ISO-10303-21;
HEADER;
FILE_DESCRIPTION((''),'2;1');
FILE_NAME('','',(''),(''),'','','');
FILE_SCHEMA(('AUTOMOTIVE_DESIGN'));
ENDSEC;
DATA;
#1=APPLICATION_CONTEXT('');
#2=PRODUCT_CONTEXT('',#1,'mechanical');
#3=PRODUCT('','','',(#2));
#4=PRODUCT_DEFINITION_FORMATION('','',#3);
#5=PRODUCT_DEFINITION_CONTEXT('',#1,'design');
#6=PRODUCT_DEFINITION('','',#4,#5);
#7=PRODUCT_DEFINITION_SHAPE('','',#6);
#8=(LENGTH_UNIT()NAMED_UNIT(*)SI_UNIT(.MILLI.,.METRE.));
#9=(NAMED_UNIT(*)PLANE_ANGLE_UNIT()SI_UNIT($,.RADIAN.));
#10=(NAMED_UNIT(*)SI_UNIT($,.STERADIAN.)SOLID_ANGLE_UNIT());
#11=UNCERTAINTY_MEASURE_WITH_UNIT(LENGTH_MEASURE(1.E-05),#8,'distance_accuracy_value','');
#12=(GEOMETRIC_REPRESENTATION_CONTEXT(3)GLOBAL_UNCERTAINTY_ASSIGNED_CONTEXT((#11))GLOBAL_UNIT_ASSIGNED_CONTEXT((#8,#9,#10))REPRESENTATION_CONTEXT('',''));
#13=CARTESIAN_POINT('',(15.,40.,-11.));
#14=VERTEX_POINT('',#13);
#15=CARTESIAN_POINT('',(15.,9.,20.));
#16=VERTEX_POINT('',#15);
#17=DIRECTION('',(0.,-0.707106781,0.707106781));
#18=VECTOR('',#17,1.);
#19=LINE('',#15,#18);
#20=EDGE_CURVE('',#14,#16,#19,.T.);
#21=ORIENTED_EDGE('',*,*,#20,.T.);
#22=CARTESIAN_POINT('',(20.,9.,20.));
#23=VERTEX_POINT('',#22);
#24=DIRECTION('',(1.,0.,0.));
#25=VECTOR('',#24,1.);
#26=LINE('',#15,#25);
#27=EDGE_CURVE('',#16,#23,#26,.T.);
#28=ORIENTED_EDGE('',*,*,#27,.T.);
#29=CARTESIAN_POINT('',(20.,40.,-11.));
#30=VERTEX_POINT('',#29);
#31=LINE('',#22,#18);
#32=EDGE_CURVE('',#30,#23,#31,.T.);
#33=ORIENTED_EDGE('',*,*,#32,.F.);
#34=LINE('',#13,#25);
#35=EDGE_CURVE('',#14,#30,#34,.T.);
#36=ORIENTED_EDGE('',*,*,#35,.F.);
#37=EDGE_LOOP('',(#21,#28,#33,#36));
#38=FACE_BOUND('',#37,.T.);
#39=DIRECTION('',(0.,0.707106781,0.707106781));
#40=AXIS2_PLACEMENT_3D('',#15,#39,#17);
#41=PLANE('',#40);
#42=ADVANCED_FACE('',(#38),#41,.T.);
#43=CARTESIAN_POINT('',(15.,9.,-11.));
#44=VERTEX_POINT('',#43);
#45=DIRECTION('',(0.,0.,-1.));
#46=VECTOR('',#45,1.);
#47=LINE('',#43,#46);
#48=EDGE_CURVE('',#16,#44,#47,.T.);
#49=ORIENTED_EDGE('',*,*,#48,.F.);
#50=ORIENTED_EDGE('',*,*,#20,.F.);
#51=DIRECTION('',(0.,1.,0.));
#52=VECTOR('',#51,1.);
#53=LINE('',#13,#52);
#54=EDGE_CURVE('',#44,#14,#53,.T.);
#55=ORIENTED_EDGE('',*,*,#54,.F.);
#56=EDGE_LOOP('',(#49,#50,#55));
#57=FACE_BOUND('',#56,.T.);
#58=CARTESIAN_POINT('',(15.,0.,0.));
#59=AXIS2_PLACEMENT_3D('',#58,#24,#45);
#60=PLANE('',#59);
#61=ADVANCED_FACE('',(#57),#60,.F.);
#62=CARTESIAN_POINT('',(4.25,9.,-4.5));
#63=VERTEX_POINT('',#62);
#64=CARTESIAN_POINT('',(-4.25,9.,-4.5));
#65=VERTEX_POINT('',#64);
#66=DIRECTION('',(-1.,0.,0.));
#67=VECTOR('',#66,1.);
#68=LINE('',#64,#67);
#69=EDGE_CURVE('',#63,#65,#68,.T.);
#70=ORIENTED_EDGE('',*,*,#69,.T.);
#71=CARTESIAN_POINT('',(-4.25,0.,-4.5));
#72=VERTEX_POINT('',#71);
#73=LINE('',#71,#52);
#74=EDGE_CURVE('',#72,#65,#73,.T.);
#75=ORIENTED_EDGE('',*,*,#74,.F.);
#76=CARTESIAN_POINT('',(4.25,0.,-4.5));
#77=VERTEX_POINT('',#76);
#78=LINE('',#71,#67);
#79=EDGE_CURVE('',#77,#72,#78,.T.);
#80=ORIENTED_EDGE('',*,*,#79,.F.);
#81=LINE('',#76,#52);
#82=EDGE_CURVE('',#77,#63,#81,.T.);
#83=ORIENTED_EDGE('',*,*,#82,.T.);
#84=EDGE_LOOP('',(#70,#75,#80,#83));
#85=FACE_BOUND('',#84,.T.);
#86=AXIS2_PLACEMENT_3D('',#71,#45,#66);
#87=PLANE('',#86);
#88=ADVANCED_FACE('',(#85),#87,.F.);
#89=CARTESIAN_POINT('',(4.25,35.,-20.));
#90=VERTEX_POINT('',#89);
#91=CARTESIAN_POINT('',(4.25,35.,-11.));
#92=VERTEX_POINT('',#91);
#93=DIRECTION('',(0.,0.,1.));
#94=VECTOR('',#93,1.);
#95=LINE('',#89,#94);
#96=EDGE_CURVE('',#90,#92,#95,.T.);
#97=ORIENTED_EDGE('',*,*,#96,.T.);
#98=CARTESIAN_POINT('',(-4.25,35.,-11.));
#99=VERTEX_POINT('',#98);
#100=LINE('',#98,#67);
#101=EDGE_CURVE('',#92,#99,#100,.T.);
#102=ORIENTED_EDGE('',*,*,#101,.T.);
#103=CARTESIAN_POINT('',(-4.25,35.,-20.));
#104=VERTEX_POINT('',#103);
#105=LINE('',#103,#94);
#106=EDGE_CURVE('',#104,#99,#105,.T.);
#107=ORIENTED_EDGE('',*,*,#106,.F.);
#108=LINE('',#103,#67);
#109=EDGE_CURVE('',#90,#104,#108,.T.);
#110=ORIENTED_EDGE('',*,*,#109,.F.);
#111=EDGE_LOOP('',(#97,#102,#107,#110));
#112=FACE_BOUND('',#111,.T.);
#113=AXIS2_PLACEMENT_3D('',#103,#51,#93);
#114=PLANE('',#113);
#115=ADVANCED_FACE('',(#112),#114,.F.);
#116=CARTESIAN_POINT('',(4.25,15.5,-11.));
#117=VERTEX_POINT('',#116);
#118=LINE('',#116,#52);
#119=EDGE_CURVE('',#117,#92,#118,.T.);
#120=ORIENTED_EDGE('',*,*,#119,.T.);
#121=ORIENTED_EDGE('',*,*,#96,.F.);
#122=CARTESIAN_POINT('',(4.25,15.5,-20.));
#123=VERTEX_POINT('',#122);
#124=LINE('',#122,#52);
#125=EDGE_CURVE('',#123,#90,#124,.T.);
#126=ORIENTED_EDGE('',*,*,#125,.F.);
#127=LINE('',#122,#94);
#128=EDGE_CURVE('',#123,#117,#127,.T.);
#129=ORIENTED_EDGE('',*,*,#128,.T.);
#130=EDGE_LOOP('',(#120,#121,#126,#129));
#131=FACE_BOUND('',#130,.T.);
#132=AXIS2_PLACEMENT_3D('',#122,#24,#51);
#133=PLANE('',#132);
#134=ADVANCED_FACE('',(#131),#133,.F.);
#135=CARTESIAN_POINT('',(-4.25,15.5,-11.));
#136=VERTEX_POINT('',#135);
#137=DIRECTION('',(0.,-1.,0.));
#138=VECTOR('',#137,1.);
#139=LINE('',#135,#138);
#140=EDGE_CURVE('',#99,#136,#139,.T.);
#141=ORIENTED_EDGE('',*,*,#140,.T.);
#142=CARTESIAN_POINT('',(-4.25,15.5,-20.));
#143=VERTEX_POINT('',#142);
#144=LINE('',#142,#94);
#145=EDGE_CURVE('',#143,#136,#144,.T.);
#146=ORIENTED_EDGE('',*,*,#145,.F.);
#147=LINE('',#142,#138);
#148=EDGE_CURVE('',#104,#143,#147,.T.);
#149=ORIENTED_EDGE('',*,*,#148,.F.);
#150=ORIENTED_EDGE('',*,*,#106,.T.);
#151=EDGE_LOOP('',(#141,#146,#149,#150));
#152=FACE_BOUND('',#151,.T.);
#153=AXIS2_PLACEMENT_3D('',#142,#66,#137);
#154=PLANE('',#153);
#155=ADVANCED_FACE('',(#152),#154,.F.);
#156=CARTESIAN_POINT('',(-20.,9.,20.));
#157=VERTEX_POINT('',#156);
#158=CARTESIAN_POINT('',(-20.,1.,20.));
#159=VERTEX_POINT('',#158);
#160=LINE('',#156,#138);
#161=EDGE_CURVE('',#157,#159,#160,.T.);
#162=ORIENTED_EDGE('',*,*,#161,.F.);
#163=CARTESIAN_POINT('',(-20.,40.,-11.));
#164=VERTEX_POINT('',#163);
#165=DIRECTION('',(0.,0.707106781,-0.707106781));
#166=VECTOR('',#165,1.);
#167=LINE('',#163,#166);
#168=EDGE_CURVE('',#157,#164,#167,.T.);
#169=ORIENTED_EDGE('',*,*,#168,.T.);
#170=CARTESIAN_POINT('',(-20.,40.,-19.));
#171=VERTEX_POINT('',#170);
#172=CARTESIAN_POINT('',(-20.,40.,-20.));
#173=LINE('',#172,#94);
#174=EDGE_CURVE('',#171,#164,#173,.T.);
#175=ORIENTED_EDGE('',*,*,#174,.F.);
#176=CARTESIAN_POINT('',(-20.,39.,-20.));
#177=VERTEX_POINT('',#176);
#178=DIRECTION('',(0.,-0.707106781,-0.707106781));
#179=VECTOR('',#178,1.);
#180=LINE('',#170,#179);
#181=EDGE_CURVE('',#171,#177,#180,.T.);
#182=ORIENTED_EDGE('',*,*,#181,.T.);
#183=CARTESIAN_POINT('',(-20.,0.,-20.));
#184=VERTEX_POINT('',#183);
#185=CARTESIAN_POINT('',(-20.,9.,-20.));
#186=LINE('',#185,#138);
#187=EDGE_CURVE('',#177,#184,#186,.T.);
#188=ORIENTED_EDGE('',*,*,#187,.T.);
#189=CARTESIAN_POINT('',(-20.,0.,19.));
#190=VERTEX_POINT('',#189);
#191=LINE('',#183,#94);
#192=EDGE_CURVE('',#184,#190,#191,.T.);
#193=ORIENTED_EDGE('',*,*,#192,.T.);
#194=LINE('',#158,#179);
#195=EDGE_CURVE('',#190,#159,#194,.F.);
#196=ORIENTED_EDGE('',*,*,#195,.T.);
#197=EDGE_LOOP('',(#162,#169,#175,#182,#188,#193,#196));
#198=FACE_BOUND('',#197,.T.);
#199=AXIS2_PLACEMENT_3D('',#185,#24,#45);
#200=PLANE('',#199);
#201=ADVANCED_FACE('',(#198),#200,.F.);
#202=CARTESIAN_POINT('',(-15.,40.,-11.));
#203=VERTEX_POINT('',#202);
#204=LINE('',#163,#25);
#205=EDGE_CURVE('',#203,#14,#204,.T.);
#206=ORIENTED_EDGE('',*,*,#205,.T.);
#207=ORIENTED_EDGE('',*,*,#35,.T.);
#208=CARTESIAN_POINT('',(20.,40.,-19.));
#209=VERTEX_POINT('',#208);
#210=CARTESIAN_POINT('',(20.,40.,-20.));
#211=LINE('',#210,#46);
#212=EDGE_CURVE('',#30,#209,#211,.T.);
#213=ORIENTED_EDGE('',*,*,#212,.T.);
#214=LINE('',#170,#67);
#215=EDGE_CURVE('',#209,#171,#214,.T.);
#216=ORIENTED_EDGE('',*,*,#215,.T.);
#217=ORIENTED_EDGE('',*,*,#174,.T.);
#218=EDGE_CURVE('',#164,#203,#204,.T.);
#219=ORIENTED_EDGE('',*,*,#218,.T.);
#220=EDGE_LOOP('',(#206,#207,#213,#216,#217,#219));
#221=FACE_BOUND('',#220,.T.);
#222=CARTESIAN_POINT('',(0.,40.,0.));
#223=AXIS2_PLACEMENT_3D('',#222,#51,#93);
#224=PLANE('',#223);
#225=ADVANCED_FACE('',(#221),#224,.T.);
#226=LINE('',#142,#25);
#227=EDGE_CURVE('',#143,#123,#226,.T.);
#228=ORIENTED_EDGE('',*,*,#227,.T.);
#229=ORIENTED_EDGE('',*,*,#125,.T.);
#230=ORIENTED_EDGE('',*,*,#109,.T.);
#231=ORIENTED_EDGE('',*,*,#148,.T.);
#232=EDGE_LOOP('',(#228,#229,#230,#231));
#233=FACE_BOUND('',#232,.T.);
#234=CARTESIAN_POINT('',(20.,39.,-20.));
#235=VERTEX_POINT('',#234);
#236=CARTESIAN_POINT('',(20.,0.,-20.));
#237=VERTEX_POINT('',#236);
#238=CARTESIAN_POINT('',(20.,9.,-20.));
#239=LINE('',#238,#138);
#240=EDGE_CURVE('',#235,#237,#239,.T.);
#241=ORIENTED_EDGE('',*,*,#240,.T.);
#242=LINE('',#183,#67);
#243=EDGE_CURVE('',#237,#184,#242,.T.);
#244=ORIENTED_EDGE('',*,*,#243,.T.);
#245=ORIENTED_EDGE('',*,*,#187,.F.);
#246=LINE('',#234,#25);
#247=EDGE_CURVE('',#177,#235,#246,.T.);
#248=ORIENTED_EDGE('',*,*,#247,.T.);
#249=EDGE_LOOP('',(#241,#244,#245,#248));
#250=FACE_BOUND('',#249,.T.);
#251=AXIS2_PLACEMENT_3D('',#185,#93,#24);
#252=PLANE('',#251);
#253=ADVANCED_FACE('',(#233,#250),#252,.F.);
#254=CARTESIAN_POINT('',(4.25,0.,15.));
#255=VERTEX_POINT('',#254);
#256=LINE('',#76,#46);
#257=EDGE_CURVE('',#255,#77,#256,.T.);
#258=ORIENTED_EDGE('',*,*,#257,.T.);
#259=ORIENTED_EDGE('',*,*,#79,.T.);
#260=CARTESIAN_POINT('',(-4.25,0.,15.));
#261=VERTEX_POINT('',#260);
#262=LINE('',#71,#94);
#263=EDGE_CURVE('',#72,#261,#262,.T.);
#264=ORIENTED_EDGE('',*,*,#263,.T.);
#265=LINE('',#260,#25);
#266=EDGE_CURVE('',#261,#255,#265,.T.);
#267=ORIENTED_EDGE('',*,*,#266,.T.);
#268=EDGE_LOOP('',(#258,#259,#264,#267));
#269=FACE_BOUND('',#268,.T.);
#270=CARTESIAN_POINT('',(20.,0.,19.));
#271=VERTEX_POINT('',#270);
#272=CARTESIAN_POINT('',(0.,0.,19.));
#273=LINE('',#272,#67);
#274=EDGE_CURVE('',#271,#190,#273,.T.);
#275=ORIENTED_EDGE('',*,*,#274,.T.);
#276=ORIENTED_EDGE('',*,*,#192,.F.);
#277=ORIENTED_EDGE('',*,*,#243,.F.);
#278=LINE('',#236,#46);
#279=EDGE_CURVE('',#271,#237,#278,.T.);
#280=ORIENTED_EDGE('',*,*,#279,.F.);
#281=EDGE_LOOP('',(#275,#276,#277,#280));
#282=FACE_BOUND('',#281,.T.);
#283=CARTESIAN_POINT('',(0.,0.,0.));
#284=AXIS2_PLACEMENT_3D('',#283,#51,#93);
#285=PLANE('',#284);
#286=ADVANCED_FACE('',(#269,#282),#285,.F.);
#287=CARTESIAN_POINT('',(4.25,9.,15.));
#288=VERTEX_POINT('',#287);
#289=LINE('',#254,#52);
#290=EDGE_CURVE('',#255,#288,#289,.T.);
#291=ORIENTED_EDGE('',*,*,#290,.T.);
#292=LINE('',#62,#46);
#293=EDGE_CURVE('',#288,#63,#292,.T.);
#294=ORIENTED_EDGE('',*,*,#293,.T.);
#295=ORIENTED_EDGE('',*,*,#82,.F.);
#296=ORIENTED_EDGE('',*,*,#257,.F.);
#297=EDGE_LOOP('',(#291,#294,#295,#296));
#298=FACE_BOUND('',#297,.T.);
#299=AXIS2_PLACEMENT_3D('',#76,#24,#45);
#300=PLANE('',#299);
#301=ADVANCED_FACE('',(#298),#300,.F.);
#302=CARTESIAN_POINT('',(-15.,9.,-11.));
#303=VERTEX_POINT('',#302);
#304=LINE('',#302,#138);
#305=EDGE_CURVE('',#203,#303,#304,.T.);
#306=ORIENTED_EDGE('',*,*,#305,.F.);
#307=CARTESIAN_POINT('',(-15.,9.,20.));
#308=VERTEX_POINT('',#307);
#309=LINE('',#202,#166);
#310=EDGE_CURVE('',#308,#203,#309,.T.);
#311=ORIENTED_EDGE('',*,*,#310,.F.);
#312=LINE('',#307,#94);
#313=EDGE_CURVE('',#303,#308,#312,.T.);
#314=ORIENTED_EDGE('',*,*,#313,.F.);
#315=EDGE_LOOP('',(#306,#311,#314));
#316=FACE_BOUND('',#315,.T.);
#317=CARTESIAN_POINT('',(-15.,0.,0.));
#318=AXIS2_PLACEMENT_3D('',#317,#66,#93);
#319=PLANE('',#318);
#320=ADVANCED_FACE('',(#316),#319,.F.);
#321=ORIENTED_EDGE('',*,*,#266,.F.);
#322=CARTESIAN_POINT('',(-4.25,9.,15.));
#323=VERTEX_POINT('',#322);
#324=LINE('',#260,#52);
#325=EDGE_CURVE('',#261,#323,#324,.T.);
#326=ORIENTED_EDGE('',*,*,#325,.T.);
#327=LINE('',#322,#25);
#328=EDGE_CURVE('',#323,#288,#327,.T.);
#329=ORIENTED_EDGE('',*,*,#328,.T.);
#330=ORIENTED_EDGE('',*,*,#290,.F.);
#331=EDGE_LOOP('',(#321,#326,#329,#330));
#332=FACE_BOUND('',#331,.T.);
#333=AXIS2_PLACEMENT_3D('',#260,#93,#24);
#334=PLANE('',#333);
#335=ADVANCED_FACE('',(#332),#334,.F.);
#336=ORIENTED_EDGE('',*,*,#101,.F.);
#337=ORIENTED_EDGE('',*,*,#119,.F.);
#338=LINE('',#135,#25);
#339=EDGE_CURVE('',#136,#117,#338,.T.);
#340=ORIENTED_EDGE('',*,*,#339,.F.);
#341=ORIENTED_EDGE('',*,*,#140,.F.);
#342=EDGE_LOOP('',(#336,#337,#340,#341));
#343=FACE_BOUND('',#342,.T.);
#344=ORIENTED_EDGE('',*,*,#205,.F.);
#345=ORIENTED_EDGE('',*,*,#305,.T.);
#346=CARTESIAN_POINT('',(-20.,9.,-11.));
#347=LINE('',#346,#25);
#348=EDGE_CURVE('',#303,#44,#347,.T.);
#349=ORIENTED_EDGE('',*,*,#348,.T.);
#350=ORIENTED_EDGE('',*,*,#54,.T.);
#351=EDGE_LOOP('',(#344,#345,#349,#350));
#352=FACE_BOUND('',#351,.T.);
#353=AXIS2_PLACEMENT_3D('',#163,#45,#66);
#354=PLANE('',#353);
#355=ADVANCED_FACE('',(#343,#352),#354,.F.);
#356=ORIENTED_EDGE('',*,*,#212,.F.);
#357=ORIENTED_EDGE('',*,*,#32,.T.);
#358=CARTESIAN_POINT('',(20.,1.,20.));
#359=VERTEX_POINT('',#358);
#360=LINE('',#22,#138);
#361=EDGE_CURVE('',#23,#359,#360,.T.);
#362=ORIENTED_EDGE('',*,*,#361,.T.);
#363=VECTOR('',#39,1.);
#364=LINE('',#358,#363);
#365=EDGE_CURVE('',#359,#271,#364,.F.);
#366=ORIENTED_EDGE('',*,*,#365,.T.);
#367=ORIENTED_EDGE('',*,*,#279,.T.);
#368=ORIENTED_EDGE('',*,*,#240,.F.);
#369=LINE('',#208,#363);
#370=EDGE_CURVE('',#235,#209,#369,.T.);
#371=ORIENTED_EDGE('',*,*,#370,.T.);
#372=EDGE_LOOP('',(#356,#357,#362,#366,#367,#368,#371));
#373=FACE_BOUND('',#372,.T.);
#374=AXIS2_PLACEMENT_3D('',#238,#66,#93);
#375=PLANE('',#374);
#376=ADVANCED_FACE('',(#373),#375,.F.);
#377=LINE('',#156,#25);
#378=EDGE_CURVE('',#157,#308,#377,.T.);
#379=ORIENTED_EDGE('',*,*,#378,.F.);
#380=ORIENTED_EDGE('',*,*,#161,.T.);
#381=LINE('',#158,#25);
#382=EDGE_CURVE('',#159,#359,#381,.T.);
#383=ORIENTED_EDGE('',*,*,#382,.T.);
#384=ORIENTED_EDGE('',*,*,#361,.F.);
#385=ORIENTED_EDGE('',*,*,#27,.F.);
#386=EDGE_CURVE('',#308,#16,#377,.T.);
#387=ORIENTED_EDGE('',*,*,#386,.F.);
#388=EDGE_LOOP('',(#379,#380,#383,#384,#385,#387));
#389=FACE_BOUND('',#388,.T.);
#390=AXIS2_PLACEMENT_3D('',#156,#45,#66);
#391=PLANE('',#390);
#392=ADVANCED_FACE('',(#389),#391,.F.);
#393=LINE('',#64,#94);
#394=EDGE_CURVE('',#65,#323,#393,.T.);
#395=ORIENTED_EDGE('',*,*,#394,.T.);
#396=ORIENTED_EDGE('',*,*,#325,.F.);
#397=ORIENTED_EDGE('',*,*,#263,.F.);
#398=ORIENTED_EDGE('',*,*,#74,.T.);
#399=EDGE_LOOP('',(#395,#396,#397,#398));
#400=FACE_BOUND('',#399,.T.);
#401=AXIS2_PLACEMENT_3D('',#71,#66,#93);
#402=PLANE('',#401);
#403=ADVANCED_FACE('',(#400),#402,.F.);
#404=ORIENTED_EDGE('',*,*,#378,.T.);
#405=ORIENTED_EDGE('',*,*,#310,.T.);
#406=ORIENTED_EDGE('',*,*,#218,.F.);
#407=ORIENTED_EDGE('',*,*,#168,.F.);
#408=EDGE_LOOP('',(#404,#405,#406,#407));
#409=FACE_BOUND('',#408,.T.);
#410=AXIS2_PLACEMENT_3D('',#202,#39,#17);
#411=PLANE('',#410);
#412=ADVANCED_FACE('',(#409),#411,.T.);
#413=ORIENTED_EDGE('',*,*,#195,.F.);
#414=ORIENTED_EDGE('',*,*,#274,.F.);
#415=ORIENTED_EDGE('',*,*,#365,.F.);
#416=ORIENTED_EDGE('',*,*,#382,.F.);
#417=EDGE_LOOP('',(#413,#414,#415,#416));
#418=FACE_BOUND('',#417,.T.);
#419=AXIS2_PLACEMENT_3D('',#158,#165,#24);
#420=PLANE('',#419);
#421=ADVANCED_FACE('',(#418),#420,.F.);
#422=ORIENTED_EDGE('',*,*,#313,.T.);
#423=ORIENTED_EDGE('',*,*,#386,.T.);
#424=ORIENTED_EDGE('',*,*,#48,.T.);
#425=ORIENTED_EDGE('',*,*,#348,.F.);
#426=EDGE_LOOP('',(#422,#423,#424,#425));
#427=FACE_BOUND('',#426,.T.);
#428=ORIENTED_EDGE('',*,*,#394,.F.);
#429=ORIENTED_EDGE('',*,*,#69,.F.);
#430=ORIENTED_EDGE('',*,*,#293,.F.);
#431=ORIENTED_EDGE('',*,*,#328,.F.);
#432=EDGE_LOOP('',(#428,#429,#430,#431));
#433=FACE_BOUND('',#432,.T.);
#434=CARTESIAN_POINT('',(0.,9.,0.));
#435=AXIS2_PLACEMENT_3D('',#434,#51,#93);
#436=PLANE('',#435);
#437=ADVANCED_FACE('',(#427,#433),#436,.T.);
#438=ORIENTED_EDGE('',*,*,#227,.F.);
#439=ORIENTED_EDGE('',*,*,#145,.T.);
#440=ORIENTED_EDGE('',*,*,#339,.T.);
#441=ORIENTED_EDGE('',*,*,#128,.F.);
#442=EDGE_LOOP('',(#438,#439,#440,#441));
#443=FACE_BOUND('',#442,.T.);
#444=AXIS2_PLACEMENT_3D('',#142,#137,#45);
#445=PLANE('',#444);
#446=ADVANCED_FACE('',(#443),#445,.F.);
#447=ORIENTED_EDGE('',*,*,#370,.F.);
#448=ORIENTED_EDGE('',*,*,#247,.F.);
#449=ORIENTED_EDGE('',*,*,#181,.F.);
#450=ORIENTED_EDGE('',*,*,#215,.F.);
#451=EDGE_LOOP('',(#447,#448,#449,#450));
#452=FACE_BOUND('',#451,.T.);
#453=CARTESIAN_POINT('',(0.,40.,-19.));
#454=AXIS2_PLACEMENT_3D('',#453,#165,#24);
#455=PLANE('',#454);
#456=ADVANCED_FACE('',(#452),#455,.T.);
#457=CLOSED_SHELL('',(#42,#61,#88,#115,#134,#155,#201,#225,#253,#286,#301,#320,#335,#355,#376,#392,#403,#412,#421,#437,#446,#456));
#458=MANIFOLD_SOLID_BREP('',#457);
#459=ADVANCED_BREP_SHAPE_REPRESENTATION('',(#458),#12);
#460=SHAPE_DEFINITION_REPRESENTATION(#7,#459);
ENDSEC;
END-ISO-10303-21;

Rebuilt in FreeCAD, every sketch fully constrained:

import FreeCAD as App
import Part
import Sketcher

V = App.Vector
Q = App.Units.Quantity


def edges_at(feature, points):
    """Names of the edges that pass closest to the given points."""
    edges = feature.Shape.Edges
    near = lambda p: min(range(len(edges)), key=lambda i: edges[i].distToShape(Part.Vertex(*p))[0])
    return sorted({f"Edge{near(p) + 1}" for p in points})


def add_polygon(sketch, points):
    """Adds a closed chain of lines whose ends are joined by coincident constraints."""
    first, n = sketch.GeometryCount, len(points)
    for a, b in zip(points, points[1:] + points[:1]):
        sketch.addGeometry(Part.LineSegment(App.Vector(*a, 0), App.Vector(*b, 0)), False)
    for i in range(n):
        sketch.addConstraint(Sketcher.Constraint("Coincident", first + i, 2, first + (i + 1) % n, 1))

doc = App.newDocument("Part")
body = doc.addObject("PartDesign::Body", "Body")

# Sketch on XZ plane
sketch1 = doc.addObject("Sketcher::SketchObject", "Sketch")
body.addObject(sketch1)
sketch1.AttachmentSupport = (doc.XZ_Plane, [""])
sketch1.MapMode = "FlatFace"
add_polygon(sketch1, [(-20, -20), (-20, 20), (20, 20), (20, -20)])  # lines 0-3
sketch1.addConstraint([
    Sketcher.Constraint("Vertical", 0),
    Sketcher.Constraint("Horizontal", 1),
    Sketcher.Constraint("Vertical", 2),
    Sketcher.Constraint("Horizontal", 3),
    Sketcher.Constraint("Symmetric", 0, 2, 2, 2, -1, 1),
    Sketcher.Constraint("Equal", 3, 0),
    Sketcher.Constraint("DistanceX", 1, 1, 1, 2, Q("40 mm")),
])
pad1 = doc.addObject("PartDesign::Pad", "Pad")
body.addObject(pad1)
pad1.Profile = sketch1
pad1.Length = 9
pad1.Reversed = True

# Sketch on XZ plane
sketch2 = doc.addObject("Sketcher::SketchObject", "Sketch001")
body.addObject(sketch2)
sketch2.AttachmentSupport = (doc.XZ_Plane, [""])
sketch2.MapMode = "FlatFace"
sketch2.AttachmentOffset = App.Placement(V(0, 0, -9), App.Rotation())
add_polygon(sketch2, [(-20, -20), (-20, -11), (20, -11), (20, -20)])  # lines 0-3
sketch2.addConstraint([
    Sketcher.Constraint("Vertical", 0),
    Sketcher.Constraint("Horizontal", 1),
    Sketcher.Constraint("Vertical", 2),
    Sketcher.Constraint("Horizontal", 3),
    Sketcher.Constraint("DistanceX", 1, 1, 1, 2, Q("40 mm")),
    Sketcher.Constraint("DistanceY", 0, 1, 0, 2, Q("9 mm")),
    Sketcher.Constraint("DistanceX", 0, 2, -1, 1, Q("20 mm")),
    Sketcher.Constraint("DistanceY", 0, 2, -1, 1, Q("11 mm")),
])
pad2 = doc.addObject("PartDesign::Pad", "Pad001")
body.addObject(pad2)
pad2.Profile = sketch2
pad2.Length = 31
pad2.Reversed = True

# Sketch on XZ plane
sketch3 = doc.addObject("Sketcher::SketchObject", "Sketch002")
body.addObject(sketch3)
sketch3.AttachmentSupport = (doc.XZ_Plane, [""])
sketch3.MapMode = "FlatFace"
sketch3.AttachmentOffset = App.Placement(V(0, 0, -9), App.Rotation())
add_polygon(sketch3, [(-4, -4), (-4, 15), (4, 15), (4, -4)])  # lines 0-3
sketch3.addConstraint([
    Sketcher.Constraint("Vertical", 0),
    Sketcher.Constraint("Horizontal", 1),
    Sketcher.Constraint("Vertical", 2),
    Sketcher.Constraint("Horizontal", 3),
    Sketcher.Constraint("DistanceX", 1, 1, 1, 2, Q("8.5 mm")),
    Sketcher.Constraint("DistanceY", 0, 1, 0, 2, Q("19.5 mm")),
    Sketcher.Constraint("DistanceY", -1, 1, 0, 2, Q("15 mm")),
    Sketcher.Constraint("DistanceX", 0, 2, -1, 1, Q("4.25 mm")),
])
pocket1 = doc.addObject("PartDesign::Pocket", "Pocket")
body.addObject(pocket1)
pocket1.Profile = sketch3
pocket1.Type = "ThroughAll"
pocket1.Reversed = True

# Sketch on XY plane
sketch4 = doc.addObject("Sketcher::SketchObject", "Sketch003")
body.addObject(sketch4)
sketch4.AttachmentSupport = (doc.XY_Plane, [""])
sketch4.MapMode = "FlatFace"
sketch4.AttachmentOffset = App.Placement(V(0, 0, -11), App.Rotation())
add_polygon(sketch4, [(-4, 35), (-4, 16), (4, 16), (4, 35)])  # lines 0-3
sketch4.addConstraint([
    Sketcher.Constraint("Vertical", 0),
    Sketcher.Constraint("Horizontal", 1),
    Sketcher.Constraint("Vertical", 2),
    Sketcher.Constraint("Horizontal", 3),
    Sketcher.Constraint("DistanceX", 1, 1, 1, 2, Q("8.5 mm")),
    Sketcher.Constraint("DistanceY", 0, 2, 0, 1, Q("19.5 mm")),
    Sketcher.Constraint("DistanceY", -1, 1, 2, 2, Q("35 mm")),
    Sketcher.Constraint("DistanceX", 0, 2, -1, 1, Q("4.25 mm")),
])
pocket2 = doc.addObject("PartDesign::Pocket", "Pocket001")
body.addObject(pocket2)
pocket2.Profile = sketch4
pocket2.Type = "ThroughAll"

# Sketch on YZ plane
sketch5 = doc.addObject("Sketcher::SketchObject", "Sketch004")
body.addObject(sketch5)
sketch5.AttachmentSupport = (doc.YZ_Plane, [""])
sketch5.MapMode = "FlatFace"
sketch5.AttachmentOffset = App.Placement(V(0, 0, -20), App.Rotation())
add_polygon(sketch5, [(9, 20), (40, -11), (9, -11)])  # lines 0-2
sketch5.addConstraint([
    Sketcher.Constraint("Horizontal", 1),
    Sketcher.Constraint("Vertical", 2),
    Sketcher.Constraint("Equal", 1, 2),
    Sketcher.Constraint("DistanceX", 1, 2, 1, 1, Q("31 mm")),
    Sketcher.Constraint("DistanceX", -1, 1, 0, 2, Q("40 mm")),
    Sketcher.Constraint("DistanceY", 0, 2, -1, 1, Q("11 mm")),
])
pad3 = doc.addObject("PartDesign::Pad", "Pad002")
body.addObject(pad3)
pad3.Profile = sketch5
pad3.Length = 5

# Sketch on YZ plane
sketch6 = doc.addObject("Sketcher::SketchObject", "Sketch005")
body.addObject(sketch6)
sketch6.AttachmentSupport = (doc.YZ_Plane, [""])
sketch6.MapMode = "FlatFace"
sketch6.AttachmentOffset = App.Placement(V(0, 0, 20), App.Rotation())
add_polygon(sketch6, [(40, -11), (9, 20), (9, -11)])  # lines 0-2
sketch6.addConstraint([
    Sketcher.Constraint("Vertical", 1),
    Sketcher.Constraint("Horizontal", 2),
    Sketcher.Constraint("Equal", 2, 1),
    Sketcher.Constraint("DistanceX", 2, 1, 2, 2, Q("31 mm")),
    Sketcher.Constraint("DistanceX", -1, 1, 0, 2, Q("9 mm")),
    Sketcher.Constraint("DistanceY", -1, 1, 0, 2, Q("20 mm")),
])
pad4 = doc.addObject("PartDesign::Pad", "Pad003")
body.addObject(pad4)
pad4.Profile = sketch6
pad4.Length = 5
pad4.Reversed = True
doc.recompute()

chamfer = doc.addObject("PartDesign::Chamfer", "Chamfer")
body.addObject(chamfer)
chamfer.Base = (pad4, edges_at(pad4, [(0, 40, -20), (0, 0, 20)]))
chamfer.Size = 1

doc.recompute()
